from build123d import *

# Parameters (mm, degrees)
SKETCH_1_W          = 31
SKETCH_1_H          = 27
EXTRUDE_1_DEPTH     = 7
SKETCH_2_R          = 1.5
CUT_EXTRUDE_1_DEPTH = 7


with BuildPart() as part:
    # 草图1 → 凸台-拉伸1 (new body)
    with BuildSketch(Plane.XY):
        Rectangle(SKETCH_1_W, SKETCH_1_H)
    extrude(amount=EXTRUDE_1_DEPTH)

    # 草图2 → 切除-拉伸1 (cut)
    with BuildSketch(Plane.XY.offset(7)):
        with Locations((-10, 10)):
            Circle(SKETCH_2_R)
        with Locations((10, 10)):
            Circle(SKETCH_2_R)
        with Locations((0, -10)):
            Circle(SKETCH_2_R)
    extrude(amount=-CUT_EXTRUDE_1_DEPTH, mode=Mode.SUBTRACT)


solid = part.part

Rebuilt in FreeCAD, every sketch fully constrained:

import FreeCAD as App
import Part
import Sketcher
from FreeCAD import Vector


def add_polygon(sketch, points):
    """Adds a closed chain of lines whose ends are joined by coincident constraints."""
    first, n = sketch.GeometryCount, len(points)
    for a, b in zip(points, points[1:] + points[:1]):
        sketch.addGeometry(Part.LineSegment(App.Vector(*a, 0), App.Vector(*b, 0)), False)
    for i in range(n):
        sketch.addConstraint(Sketcher.Constraint("Coincident", first + i, 2, first + (i + 1) % n, 1))

doc = App.newDocument("Part")
body = doc.addObject("PartDesign::Body", "Body")

# Sketch on XY plane
sketch1 = doc.addObject("Sketcher::SketchObject", "Sketch")
body.addObject(sketch1)
sketch1.AttachmentSupport = (doc.XY_Plane, [""])
sketch1.MapMode = "FlatFace"
add_polygon(sketch1, [(-16, 14), (-16, -14), (16, -14), (16, 14)])  # lines 0-3
sketch1.addConstraint([
    Sketcher.Constraint("Vertical", 0),
    Sketcher.Constraint("Horizontal", 1),
    Sketcher.Constraint("Vertical", 2),
    Sketcher.Constraint("Horizontal", 3),
    Sketcher.Constraint("Symmetric", 0, 2, 2, 2, -1, 1),
    Sketcher.Constraint("DistanceX", 1, 1, 1, 2, 31.0),
    Sketcher.Constraint("DistanceY", 0, 2, 0, 1, 27.0),
])
pad1 = doc.addObject("PartDesign::Pad", "Pad")
body.addObject(pad1)
pad1.Profile = sketch1
pad1.Length = 7

# Sketch on XY plane
sketch2 = doc.addObject("Sketcher::SketchObject", "Sketch001")
body.addObject(sketch2)
sketch2.AttachmentSupport = (doc.XY_Plane, [""])
sketch2.MapMode = "FlatFace"
sketch2.AttachmentOffset = App.Placement(Vector(0, 0, 7), App.Rotation())
sketch2.addGeometry([
    Part.Circle(Vector(-10, 10, 0), Vector(0, 0, 1), 1.5),
    Part.Circle(Vector(10, 10, 0), Vector(0, 0, 1), 1.5),
    Part.Circle(Vector(0, -10, 0), Vector(0, 0, 1), 1.5),
], False)
sketch2.addConstraint([
    Sketcher.Constraint("Equal", 0, 1),
    Sketcher.Constraint("Equal", 1, 2),
    Sketcher.Constraint("Symmetric", 0, 3, 1, 3, -2),
    Sketcher.Constraint("PointOnObject", 2, 3, -2),
    Sketcher.Constraint("Diameter", 0, 3.0),
    Sketcher.Constraint("DistanceX", 0, 3, -1, 1, 10.0),
    Sketcher.Constraint("DistanceY", -1, 1, 0, 3, 10.0),
    Sketcher.Constraint("DistanceY", 2, 3, -1, 1, 10.0),
])
pocket1 = doc.addObject("PartDesign::Pocket", "Pocket")
body.addObject(pocket1)
pocket1.Profile = sketch2
pocket1.Length = 7

doc.recompute()
